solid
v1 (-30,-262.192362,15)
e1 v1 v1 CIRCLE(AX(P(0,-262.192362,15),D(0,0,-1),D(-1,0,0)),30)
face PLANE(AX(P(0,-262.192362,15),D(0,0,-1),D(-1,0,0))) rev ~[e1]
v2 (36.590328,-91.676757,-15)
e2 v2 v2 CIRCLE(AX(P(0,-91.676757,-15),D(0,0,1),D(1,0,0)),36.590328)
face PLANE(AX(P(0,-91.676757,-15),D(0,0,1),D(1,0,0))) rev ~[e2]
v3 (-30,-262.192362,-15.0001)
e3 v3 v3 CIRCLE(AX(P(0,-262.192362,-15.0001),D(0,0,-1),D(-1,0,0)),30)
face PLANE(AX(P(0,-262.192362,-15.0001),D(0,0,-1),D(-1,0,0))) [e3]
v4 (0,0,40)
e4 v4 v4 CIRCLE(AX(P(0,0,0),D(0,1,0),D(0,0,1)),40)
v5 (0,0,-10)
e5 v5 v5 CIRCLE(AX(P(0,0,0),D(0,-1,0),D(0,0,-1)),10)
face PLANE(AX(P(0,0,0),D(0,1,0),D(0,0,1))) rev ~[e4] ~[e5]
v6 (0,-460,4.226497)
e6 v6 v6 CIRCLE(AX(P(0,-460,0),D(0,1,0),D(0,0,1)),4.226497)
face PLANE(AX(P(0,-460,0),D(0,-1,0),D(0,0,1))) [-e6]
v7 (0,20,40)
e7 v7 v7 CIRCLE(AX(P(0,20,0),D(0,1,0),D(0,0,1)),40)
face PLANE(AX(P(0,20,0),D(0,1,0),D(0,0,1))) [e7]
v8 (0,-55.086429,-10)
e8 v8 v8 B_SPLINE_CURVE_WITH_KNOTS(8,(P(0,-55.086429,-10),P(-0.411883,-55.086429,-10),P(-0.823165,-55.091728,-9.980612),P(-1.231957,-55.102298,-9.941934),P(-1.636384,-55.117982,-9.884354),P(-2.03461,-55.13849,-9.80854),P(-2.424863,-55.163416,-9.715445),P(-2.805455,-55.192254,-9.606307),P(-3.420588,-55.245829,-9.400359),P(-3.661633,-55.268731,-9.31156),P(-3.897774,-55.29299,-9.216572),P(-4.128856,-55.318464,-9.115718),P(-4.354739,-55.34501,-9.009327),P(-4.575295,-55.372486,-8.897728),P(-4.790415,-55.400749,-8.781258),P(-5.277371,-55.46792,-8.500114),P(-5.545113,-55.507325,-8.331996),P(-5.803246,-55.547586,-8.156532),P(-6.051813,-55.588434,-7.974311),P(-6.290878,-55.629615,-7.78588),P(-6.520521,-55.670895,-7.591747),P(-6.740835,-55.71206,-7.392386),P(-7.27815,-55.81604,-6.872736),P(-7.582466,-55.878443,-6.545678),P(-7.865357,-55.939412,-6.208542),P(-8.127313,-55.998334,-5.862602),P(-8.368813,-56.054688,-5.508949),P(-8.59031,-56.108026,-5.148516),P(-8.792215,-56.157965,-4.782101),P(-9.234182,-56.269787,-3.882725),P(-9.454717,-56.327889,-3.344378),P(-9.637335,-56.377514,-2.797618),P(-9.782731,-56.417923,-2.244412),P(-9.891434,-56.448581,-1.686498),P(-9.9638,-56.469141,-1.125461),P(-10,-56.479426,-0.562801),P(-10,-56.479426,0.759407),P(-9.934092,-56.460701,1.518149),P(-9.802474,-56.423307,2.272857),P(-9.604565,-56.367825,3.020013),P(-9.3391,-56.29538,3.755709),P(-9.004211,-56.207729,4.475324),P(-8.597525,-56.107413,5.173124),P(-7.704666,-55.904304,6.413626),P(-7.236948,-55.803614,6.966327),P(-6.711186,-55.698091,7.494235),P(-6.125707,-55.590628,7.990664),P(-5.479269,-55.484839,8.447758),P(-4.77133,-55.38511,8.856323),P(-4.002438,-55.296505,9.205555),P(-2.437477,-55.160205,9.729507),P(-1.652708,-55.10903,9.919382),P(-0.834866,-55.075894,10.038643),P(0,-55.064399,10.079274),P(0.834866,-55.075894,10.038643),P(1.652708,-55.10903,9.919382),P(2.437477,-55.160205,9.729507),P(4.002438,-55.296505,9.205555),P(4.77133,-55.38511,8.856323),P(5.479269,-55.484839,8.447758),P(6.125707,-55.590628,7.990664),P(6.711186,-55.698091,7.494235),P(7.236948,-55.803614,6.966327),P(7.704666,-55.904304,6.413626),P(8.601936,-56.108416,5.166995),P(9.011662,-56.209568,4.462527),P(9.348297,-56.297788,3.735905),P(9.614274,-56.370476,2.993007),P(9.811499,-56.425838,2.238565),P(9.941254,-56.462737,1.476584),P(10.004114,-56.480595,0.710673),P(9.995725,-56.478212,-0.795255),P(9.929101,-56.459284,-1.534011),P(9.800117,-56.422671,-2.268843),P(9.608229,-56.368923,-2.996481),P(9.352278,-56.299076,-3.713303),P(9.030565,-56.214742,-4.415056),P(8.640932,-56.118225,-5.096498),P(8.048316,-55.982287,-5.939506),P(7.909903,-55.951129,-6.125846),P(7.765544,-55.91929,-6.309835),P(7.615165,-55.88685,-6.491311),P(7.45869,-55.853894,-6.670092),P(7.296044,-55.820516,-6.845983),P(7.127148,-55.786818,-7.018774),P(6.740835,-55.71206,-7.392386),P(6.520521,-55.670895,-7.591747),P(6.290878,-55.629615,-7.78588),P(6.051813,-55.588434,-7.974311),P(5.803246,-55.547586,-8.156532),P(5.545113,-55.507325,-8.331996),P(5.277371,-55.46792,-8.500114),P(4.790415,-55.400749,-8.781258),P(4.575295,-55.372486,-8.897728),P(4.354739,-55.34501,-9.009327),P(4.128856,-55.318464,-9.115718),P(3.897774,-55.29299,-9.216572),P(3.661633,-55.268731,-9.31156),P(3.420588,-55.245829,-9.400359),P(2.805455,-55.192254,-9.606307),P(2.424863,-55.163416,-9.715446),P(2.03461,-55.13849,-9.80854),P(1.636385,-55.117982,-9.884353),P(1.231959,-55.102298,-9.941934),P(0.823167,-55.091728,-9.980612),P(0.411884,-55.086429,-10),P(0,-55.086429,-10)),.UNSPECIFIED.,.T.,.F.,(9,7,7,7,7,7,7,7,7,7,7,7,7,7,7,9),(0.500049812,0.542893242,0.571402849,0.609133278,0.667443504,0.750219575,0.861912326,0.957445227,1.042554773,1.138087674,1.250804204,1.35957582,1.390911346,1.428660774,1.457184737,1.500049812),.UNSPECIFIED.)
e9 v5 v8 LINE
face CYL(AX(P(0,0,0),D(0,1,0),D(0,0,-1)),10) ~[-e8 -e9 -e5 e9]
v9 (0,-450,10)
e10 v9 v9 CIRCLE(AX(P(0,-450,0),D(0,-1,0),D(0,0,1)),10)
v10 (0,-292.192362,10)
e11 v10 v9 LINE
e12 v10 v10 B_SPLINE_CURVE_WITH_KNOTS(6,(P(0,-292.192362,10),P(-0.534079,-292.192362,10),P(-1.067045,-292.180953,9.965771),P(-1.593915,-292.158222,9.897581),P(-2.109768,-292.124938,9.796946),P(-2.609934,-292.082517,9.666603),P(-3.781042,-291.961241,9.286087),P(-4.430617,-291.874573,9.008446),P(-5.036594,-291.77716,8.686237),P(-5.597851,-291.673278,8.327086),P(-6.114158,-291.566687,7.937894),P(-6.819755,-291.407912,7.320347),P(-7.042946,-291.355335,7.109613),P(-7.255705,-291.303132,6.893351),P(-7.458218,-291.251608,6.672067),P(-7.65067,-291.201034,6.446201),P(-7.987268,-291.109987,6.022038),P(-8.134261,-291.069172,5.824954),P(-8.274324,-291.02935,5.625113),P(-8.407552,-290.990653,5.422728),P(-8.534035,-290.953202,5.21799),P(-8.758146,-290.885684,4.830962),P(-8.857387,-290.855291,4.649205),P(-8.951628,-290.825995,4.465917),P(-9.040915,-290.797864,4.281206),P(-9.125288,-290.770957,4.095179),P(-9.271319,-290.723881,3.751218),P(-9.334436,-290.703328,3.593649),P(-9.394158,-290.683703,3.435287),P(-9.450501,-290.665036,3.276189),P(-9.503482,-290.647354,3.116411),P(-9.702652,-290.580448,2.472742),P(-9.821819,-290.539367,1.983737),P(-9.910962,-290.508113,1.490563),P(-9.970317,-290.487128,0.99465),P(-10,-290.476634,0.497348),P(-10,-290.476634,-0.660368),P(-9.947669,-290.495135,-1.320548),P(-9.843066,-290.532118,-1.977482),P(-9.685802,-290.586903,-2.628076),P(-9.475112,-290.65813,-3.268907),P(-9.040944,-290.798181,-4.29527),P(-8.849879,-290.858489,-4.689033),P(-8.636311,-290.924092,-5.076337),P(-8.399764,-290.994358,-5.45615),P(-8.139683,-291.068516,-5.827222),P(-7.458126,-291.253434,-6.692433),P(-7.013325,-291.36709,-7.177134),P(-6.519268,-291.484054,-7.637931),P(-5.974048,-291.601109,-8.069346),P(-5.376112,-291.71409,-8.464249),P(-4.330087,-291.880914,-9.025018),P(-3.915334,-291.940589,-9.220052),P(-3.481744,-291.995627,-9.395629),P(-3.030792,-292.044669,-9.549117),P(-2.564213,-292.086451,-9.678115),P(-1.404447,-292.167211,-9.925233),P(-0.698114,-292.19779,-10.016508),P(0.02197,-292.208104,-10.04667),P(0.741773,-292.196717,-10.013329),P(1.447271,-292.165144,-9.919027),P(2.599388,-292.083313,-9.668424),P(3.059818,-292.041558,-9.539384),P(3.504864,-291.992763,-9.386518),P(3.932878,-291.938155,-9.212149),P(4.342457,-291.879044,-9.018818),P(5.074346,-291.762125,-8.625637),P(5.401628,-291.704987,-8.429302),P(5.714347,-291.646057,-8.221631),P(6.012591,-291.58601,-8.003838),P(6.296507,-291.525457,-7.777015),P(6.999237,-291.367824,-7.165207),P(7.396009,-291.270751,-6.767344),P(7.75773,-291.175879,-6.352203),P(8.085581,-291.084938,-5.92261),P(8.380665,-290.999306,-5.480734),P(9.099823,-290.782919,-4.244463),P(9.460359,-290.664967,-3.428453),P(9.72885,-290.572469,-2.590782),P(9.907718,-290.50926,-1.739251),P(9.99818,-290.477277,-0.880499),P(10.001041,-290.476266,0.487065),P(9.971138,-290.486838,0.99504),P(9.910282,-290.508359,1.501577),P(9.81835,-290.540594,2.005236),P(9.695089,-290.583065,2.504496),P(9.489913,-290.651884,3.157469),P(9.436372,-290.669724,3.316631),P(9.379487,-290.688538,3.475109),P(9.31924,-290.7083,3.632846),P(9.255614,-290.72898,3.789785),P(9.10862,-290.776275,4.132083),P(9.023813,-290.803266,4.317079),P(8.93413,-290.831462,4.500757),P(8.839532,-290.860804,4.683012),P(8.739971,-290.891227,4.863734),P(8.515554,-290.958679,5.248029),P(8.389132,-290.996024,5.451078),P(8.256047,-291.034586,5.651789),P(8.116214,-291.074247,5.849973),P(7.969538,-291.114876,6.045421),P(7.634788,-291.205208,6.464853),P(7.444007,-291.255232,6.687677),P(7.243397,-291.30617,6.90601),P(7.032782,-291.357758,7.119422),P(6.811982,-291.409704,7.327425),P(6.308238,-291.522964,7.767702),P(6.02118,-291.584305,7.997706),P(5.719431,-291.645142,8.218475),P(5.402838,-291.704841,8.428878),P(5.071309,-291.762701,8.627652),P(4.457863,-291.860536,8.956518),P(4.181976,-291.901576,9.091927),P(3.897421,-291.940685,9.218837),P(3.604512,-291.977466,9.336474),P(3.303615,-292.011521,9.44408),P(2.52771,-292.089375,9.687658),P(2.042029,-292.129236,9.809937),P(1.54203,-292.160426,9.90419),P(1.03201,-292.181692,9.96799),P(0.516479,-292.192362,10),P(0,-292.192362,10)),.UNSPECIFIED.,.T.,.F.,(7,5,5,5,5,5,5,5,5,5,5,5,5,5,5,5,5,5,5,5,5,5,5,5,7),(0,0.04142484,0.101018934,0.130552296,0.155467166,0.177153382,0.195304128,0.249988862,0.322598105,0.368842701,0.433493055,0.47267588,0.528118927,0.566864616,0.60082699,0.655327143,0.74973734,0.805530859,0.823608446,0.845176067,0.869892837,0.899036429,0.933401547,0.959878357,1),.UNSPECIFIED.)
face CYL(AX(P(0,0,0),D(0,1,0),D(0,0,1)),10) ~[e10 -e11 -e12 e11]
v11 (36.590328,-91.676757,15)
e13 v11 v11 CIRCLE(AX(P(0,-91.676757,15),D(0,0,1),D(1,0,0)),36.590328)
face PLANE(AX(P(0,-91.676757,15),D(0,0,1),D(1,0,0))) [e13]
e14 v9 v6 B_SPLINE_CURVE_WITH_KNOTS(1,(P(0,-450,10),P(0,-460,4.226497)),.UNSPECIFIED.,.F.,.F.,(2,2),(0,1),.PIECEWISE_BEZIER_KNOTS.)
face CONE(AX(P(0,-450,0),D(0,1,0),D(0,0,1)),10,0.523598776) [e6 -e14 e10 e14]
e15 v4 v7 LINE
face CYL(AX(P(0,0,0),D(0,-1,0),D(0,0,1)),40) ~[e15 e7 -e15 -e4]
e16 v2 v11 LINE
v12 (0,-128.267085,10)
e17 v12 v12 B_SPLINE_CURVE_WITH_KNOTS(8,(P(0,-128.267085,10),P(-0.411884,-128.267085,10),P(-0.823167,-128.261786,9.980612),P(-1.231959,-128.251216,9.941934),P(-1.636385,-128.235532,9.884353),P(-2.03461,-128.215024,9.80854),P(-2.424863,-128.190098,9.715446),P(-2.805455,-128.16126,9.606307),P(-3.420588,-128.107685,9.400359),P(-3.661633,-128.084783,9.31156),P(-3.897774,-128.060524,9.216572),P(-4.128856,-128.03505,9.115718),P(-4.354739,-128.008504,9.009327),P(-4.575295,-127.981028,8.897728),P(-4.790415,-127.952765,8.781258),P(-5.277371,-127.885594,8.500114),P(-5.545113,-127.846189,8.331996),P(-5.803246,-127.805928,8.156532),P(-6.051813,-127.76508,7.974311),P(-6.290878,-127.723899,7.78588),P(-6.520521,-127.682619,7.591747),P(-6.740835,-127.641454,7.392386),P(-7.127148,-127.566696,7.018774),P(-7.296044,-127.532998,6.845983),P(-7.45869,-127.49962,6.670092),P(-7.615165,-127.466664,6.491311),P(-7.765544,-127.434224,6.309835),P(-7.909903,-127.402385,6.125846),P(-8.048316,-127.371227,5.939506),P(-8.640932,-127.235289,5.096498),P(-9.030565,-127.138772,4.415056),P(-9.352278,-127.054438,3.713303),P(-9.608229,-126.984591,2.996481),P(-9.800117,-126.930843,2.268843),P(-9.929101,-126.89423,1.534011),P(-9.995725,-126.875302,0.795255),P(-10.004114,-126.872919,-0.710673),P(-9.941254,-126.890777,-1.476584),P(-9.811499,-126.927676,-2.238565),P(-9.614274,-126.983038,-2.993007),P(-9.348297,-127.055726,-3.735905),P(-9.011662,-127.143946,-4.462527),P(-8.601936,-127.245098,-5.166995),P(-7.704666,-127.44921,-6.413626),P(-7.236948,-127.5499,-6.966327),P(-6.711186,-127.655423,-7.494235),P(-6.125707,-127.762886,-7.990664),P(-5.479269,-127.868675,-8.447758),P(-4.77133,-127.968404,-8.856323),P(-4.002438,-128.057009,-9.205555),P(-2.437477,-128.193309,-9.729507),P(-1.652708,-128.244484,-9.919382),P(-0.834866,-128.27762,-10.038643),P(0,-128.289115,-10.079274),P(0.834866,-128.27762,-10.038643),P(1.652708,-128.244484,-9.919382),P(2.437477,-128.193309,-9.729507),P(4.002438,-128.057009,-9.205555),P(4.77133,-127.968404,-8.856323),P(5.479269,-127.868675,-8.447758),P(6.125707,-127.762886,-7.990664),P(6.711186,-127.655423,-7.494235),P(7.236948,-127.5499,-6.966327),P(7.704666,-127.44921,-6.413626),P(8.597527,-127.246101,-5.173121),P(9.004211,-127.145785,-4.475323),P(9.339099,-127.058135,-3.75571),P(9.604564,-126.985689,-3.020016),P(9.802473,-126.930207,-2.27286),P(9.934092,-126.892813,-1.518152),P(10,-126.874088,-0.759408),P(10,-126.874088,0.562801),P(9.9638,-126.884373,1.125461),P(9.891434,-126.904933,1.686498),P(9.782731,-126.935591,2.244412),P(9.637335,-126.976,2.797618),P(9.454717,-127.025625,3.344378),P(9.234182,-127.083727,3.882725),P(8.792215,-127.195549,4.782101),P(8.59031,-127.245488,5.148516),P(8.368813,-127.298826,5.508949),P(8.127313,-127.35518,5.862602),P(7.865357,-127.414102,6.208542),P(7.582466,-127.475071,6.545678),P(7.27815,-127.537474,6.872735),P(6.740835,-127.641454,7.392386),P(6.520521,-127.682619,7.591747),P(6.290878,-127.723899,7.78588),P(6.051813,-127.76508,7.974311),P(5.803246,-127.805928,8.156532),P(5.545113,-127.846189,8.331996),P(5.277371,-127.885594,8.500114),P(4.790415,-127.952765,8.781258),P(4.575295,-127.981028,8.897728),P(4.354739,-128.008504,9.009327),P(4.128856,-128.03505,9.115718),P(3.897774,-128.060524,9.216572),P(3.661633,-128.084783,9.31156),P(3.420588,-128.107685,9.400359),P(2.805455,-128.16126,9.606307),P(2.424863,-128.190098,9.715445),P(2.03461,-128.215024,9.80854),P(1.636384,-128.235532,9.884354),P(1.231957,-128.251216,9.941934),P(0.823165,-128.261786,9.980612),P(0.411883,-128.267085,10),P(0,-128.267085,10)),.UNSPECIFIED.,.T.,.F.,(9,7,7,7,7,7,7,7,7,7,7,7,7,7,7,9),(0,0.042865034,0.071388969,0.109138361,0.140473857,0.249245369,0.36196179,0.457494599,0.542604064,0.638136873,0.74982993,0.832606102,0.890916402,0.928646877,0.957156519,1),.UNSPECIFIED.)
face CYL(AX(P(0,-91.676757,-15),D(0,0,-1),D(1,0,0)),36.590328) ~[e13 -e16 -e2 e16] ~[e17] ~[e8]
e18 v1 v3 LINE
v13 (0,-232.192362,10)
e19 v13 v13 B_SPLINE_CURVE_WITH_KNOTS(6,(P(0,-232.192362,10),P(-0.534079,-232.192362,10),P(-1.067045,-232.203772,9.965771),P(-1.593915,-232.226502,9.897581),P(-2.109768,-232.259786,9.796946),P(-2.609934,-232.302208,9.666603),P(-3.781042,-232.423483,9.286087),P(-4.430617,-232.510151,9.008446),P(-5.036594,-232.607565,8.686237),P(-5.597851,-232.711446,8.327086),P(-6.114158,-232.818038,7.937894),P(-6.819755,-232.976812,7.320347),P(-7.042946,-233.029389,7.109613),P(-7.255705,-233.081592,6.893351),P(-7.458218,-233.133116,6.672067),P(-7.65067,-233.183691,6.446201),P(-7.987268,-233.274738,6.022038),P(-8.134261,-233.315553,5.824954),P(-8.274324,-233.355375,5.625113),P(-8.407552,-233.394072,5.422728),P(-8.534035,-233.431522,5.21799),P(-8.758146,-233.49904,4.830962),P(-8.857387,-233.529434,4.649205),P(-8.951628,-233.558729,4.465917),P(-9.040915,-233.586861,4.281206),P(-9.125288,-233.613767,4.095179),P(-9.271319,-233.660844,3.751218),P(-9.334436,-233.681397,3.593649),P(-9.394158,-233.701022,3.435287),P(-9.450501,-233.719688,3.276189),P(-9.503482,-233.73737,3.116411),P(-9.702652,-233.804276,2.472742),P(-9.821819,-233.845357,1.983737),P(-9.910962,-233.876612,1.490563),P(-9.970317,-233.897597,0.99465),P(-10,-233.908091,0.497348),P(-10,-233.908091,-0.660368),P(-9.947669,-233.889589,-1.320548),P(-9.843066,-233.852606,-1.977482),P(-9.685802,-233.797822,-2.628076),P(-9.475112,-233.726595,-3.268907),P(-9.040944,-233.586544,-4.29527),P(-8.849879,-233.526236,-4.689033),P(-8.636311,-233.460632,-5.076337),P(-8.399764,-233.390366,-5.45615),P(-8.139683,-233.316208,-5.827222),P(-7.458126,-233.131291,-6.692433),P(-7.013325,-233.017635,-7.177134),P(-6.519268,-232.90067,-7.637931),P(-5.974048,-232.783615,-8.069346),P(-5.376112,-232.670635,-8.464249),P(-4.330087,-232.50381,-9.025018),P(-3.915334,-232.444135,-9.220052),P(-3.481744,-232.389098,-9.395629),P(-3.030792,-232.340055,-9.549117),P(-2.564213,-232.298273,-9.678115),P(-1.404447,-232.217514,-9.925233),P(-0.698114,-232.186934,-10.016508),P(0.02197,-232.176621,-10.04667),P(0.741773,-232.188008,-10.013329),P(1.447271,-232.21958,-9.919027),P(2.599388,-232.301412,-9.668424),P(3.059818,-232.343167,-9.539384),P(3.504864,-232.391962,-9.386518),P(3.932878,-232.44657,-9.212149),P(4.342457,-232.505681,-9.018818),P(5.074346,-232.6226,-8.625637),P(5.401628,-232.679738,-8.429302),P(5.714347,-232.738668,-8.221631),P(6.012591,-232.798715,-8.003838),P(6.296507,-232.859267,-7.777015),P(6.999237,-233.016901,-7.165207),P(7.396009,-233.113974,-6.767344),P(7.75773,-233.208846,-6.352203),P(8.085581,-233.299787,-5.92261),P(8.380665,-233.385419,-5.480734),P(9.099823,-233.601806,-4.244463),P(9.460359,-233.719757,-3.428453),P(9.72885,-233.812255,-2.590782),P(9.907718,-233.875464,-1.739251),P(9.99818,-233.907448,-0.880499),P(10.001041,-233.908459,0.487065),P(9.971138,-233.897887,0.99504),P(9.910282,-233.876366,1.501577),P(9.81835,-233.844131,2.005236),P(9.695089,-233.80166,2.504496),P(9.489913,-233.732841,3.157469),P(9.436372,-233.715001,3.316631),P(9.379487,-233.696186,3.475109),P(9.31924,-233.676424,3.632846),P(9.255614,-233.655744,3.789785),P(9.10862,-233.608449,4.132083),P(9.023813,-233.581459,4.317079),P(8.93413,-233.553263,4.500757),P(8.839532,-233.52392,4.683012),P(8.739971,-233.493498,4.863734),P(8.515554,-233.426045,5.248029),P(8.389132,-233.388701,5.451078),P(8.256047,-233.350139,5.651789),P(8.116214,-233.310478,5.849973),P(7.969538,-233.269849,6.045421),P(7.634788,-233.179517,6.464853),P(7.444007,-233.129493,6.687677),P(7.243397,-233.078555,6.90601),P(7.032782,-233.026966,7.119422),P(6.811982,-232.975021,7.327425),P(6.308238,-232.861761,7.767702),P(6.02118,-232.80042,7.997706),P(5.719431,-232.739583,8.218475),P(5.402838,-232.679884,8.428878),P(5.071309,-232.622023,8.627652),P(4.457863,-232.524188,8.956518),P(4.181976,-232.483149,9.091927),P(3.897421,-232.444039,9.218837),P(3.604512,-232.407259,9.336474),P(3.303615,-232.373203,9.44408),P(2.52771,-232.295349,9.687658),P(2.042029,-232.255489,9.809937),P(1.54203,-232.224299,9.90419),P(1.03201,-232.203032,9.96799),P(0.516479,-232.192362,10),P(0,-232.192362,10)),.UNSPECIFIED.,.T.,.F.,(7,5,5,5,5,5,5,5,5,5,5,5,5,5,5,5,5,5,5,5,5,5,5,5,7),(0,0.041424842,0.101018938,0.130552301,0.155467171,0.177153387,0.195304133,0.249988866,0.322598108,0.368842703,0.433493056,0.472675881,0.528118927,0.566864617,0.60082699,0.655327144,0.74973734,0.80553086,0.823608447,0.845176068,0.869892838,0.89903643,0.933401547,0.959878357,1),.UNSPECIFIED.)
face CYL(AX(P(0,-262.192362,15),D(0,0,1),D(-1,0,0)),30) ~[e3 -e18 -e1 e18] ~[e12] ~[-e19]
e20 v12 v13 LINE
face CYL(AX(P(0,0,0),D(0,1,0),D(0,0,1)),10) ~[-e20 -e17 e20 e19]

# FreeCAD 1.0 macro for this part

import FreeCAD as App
import Part
import Sketcher

doc = App.newDocument("Part")
body = doc.addObject("PartDesign::Body", "Body")

sketch1 = body.newObject("Sketcher::SketchObject", "Sketch")
sketch1.AttachmentSupport = (doc.getObject("XZ_Plane"), [""])
sketch1.MapMode = "FlatFace"
sketch1.addGeometry(Part.Circle(App.Vector(0, 0, 0), App.Vector(0, 0, 1), 40), False)
sketch1.addConstraint([
    Sketcher.Constraint("Coincident", 0, 3, -1, 1),
    Sketcher.Constraint("Diameter", 0, 80.0),
])
pad1 = body.newObject("PartDesign::Pad", "Pad")
pad1.Profile = sketch1
pad1.Length = 20
pad1.Reversed = True

sketch2 = body.newObject("Sketcher::SketchObject", "Sketch001")
sketch2.AttachmentSupport = (doc.getObject("XZ_Plane"), [""])
sketch2.MapMode = "FlatFace"
sketch2.addGeometry(Part.Circle(App.Vector(0, 0, 0), App.Vector(0, 0, 1), 10), False)
sketch2.addConstraint([
    Sketcher.Constraint("Coincident", 0, 3, -1, 1),
    Sketcher.Constraint("Diameter", 0, 20.0),
])
pad2 = body.newObject("PartDesign::Pad", "Pad001")
pad2.Profile = sketch2
pad2.Length = 60

sketch3 = body.newObject("Sketcher::SketchObject", "Sketch002")
sketch3.AttachmentSupport = (doc.getObject("XY_Plane"), [""])
sketch3.MapMode = "FlatFace"
sketch3.addGeometry(Part.Circle(App.Vector(0, -92, 0), App.Vector(0, 0, 1), 37), False)
sketch3.addConstraint([
    Sketcher.Constraint("PointOnObject", 0, 3, -2),
    Sketcher.Constraint("Diameter", 0, 73.180656),
    Sketcher.Constraint("DistanceY", 0, 3, -1, 1, 91.676757),
])
pad3 = body.newObject("PartDesign::Pad", "Pad002")
pad3.Profile = sketch3
pad3.Type = "TwoLengths"
pad3.Length = 15
pad3.Length2 = 15

sketch4 = body.newObject("Sketcher::SketchObject", "Sketch003")
sketch4.AttachmentSupport = (doc.getObject("XZ_Plane"), [""])
sketch4.MapMode = "FlatFace"
sketch4.addGeometry(Part.Circle(App.Vector(0, 0, 0), App.Vector(0, 0, 1), 10), False)
sketch4.addConstraint([
    Sketcher.Constraint("Coincident", 0, 3, -1, 1),
    Sketcher.Constraint("Diameter", 0, 20.0),
])
pad4 = body.newObject("PartDesign::Pad", "Pad003")
pad4.Profile = sketch4
pad4.Length = 450

sketch5 = body.newObject("Sketcher::SketchObject", "Sketch004")
sketch5.AttachmentSupport = (doc.getObject("XY_Plane"), [""])
sketch5.MapMode = "FlatFace"
sketch5.AttachmentOffset = App.Placement(App.Vector(0, 0, -15), App.Rotation())
sketch5.addGeometry(Part.Circle(App.Vector(0, -262, 0), App.Vector(0, 0, 1), 30), False)
sketch5.addConstraint([
    Sketcher.Constraint("PointOnObject", 0, 3, -2),
    Sketcher.Constraint("Diameter", 0, 60.0),
    Sketcher.Constraint("DistanceY", 0, 3, -1, 1, 262.192362),
])
pad5 = body.newObject("PartDesign::Pad", "Pad004")
pad5.Profile = sketch5
pad5.Type = "TwoLengths"
pad5.Length = 0.0001
pad5.Length2 = 30
pad5.Reversed = True

sketch6 = body.newObject("Sketcher::SketchObject", "Sketch005")
sketch6.AttachmentSupport = (doc.getObject("XZ_Plane"), [""])
sketch6.MapMode = "FlatFace"
sketch6.AttachmentOffset = App.Placement(App.Vector(0, 0, 450), App.Rotation())
sketch6.addGeometry(Part.Circle(App.Vector(0, 0, 0), App.Vector(0, 0, 1), 10), False)
sketch6.addConstraint([
    Sketcher.Constraint("Coincident", 0, 3, -1, 1),
    Sketcher.Constraint("Diameter", 0, 20.0),
])
pad6 = body.newObject("PartDesign::Pad", "Pad005")
pad6.Profile = sketch6
pad6.Length = 10
pad6.TaperAngle = -30

sketch7 = body.newObject("Sketcher::SketchObject", "Sketch006")
sketch7.AttachmentSupport = (doc.getObject("XZ_Plane"), [""])
sketch7.MapMode = "FlatFace"
sketch7.AttachmentOffset = App.Placement(App.Vector(0, 0, 450), App.Rotation())
sketch7.addGeometry(Part.Circle(App.Vector(0, 0, 0), App.Vector(0, 0, 1), 10), False)
sketch7.addConstraint([
    Sketcher.Constraint("Coincident", 0, 3, -1, 1),
    Sketcher.Constraint("Diameter", 0, 20.0),
])
pad7 = body.newObject("PartDesign::Pad", "Pad006")
pad7.Profile = sketch7
pad7.Length = 0.0001
pad7.Reversed = True

doc.recompute()
